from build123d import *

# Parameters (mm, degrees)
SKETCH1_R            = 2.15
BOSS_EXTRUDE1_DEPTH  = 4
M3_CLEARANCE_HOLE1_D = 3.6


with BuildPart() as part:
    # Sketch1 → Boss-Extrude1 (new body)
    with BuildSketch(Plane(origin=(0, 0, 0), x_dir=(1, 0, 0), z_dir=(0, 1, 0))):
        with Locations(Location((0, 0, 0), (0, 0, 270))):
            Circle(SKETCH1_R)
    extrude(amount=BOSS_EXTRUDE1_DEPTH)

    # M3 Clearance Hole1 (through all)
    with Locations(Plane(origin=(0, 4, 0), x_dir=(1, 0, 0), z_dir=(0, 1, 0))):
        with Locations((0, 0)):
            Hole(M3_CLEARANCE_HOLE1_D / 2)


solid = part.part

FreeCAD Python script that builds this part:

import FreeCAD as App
import Part
import Sketcher
from FreeCAD import Vector

doc = App.newDocument("Part")
params = doc.addObject("Spreadsheet::Sheet", "Params")
for row, (alias, value) in enumerate([
    ("sketch1_diameter", "4.3 mm"),
    ("pad1_length", "4 mm"),
    ("sketch2_diameter", "3.6 mm"),
    ("hole_diameter", "3.6 mm"),
], start=1):
    params.set(f"A{row}", alias)
    params.set(f"B{row}", "=" + value)
    params.setAlias(f"B{row}", alias)

body = doc.addObject("PartDesign::Body", "Body")

sketch1 = body.newObject("Sketcher::SketchObject", "Sketch")
sketch1.AttachmentSupport = (doc.getObject("XZ_Plane"), [""])
sketch1.MapMode = "FlatFace"
sketch1.addGeometry(Part.Circle(Vector(0, 0, 0), Vector(0, 0, 1), 2.15), False)
sketch1.addConstraint(Sketcher.Constraint("Coincident", 0, 3, -1, 1))
sketch1.addConstraint(Sketcher.Constraint("Diameter", 0, 4.3))
sketch1.setExpression("Constraints[1]", "Params.sketch1_diameter")
pad1 = body.newObject("PartDesign::Pad", "Pad")
pad1.Profile = sketch1
pad1.setExpression("Length", "Params.pad1_length")
pad1.Reversed = True

sketch2 = body.newObject("Sketcher::SketchObject", "Sketch001")
sketch2.AttachmentSupport = (doc.getObject("XZ_Plane"), [""])
sketch2.MapMode = "FlatFace"
sketch2.AttachmentOffset = App.Placement(Vector(0, 0, -4), App.Rotation())
sketch2.addGeometry(Part.Circle(Vector(0, 0, 0), Vector(0, 0, 1), 1.8), False)
sketch2.addConstraint(Sketcher.Constraint("Coincident", 0, 3, -1, 1))
sketch2.addConstraint(Sketcher.Constraint("Diameter", 0, 3.6))
sketch2.setExpression("Constraints[1]", "Params.sketch2_diameter")
doc.recompute()
hole = body.newObject("PartDesign::Hole", "Hole")
hole.Profile = sketch2
hole.ThreadType = "None"
hole.setExpression("Diameter", "Params.hole_diameter")
hole.DepthType = "ThroughAll"
hole.Reversed = True

doc.recompute()
